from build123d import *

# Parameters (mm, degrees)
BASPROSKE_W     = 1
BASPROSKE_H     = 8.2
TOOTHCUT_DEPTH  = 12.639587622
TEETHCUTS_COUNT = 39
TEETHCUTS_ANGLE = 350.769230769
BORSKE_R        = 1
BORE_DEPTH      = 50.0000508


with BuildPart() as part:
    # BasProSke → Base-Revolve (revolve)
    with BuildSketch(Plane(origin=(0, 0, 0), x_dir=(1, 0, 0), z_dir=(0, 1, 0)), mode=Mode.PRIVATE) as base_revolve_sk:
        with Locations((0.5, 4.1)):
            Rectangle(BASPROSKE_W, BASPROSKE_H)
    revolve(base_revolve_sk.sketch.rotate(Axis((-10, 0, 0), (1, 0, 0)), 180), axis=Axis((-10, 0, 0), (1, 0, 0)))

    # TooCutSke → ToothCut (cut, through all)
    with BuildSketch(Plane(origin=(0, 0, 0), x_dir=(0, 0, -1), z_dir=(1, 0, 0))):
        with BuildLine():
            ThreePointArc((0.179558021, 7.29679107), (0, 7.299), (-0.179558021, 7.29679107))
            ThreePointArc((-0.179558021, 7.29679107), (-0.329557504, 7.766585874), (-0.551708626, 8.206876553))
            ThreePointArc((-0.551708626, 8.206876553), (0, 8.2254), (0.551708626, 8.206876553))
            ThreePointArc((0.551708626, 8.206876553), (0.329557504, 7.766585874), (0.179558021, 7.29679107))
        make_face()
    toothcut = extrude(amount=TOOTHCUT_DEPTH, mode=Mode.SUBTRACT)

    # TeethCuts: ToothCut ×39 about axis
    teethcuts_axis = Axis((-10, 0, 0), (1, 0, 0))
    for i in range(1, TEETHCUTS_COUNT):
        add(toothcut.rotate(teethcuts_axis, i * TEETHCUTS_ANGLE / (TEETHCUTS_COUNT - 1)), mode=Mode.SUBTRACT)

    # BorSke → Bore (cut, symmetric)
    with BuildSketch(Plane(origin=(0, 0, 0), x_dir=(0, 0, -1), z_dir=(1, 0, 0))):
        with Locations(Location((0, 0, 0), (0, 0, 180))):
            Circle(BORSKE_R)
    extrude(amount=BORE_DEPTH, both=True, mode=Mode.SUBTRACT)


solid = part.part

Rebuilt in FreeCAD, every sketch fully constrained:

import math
import FreeCAD as App
import Part
import Sketcher


def add_polygon(sketch, points):
    """Adds a closed chain of lines whose ends are joined by coincident constraints."""
    first, n = sketch.GeometryCount, len(points)
    for a, b in zip(points, points[1:] + points[:1]):
        sketch.addGeometry(Part.LineSegment(App.Vector(*a, 0), App.Vector(*b, 0)), False)
    for i in range(n):
        sketch.addConstraint(Sketcher.Constraint("Coincident", first + i, 2, first + (i + 1) % n, 1))

doc = App.newDocument("Part")
params = doc.addObject("Spreadsheet::Sheet", "Params")
for row, (alias, value) in enumerate([
    ("sketch1_width", "1 mm"),
    ("sketch1_height", "8.2 mm"),
    ("revolution_angle", "360 deg"),
    ("sketch2_radius", "3.12 mm"),
    ("sketch3_diameter", "2 mm"),
    ("pocket2_length", "100.000102 mm"),
], start=1):
    params.set(f"A{row}", alias)
    params.set(f"B{row}", "=" + value)
    params.setAlias(f"B{row}", alias)

body = doc.addObject("PartDesign::Body", "Body")

# Sketch on XZ plane
sketch1 = body.newObject("Sketcher::SketchObject", "Sketch")
sketch1.AttachmentSupport = (doc.getObject("XZ_Plane"), [""])
sketch1.MapMode = "FlatFace"
add_polygon(sketch1, [(0, -8.2), (0, 0), (1, 0), (1, -8.2)])  # lines 0-3
sketch1.addConstraint([
    Sketcher.Constraint("Vertical", 0),
    Sketcher.Constraint("Horizontal", 1),
    Sketcher.Constraint("Vertical", 2),
    Sketcher.Constraint("Horizontal", 3),
    Sketcher.Constraint("Coincident", 0, 2, -1, 1),
    Sketcher.Constraint("DistanceX", 1, 1, 1, 2, 1.0),
    Sketcher.Constraint("DistanceY", 0, 1, 0, 2, 8.2),
])
sketch1.setExpression("Constraints[9]", "Params.sketch1_width")
sketch1.setExpression("Constraints[10]", "Params.sketch1_height")
revolution = body.newObject("PartDesign::Revolution", "Revolution")
revolution.Profile = sketch1
revolution.ReferenceAxis = (sketch1, ["H_Axis"])
revolution.setExpression("Angle", "Params.revolution_angle")

# Sketch on YZ plane
sketch2 = body.newObject("Sketcher::SketchObject", "Sketch001")
sketch2.AttachmentSupport = (doc.getObject("YZ_Plane"), [""])
sketch2.MapMode = "FlatFace"
sketch2.addGeometry([
    Part.ArcOfCircle(Part.Circle(App.Vector(0, 0, 0), App.Vector(0, 0, 1), 7.299), math.radians(-1.409639), math.radians(1.409639)),
    Part.ArcOfCircle(Part.Circle(App.Vector(6.585678, -3.217439, 0), App.Vector(0, 0, 1), 3.12), math.radians(58.693585), math.radians(76.825313)),
    Part.ArcOfCircle(Part.Circle(App.Vector(0, 0, 0), App.Vector(0, 0, 1), 8.2254), math.radians(-3.845932), math.radians(3.845932)),
    Part.ArcOfCircle(Part.Circle(App.Vector(6.585678, 3.217439, 0), App.Vector(0, 0, 1), 3.12), math.radians(-76.825313), math.radians(-58.693585)),
], False)
sketch2.addConstraint([
    Sketcher.Constraint("Coincident", 0, 1, 1, 2),
    Sketcher.Constraint("Coincident", 1, 1, 2, 1),
    Sketcher.Constraint("Coincident", 2, 2, 3, 2),
    Sketcher.Constraint("Coincident", 3, 1, 0, 2),
    Sketcher.Constraint("Coincident", 0, 3, -1, 1),
    Sketcher.Constraint("Coincident", 2, 3, -1, 1),
    Sketcher.Constraint("Equal", 1, 3),
    Sketcher.Constraint("Symmetric", 1, 3, 3, 3, -1),
    Sketcher.Constraint("Radius", 1, 3.12),
    Sketcher.Constraint("Radius", 0, 7.299),
    Sketcher.Constraint("Radius", 2, 8.2254),
    Sketcher.Constraint("DistanceX", 1, 3, 1, 1, 1.621198),
    Sketcher.Constraint("DistanceX", -1, 1, 1, 3, 6.585678),
])
sketch2.setExpression("Constraints[8]", "Params.sketch2_radius")
pocket1 = body.newObject("PartDesign::Pocket", "Pocket")
pocket1.Profile = sketch2
pocket1.Type = "ThroughAll"
pocket1.Reversed = True
doc.recompute()

polarpattern = body.newObject("PartDesign::PolarPattern", "PolarPattern")
polarpattern.Originals = [pocket1]
polarpattern.Axis = (doc.getObject("X_Axis"), [""])
polarpattern.Angle = 360
polarpattern.Occurrences = 39
body.Tip = polarpattern

# Sketch on YZ plane
sketch3 = body.newObject("Sketcher::SketchObject", "Sketch002")
sketch3.AttachmentSupport = (doc.getObject("YZ_Plane"), [""])
sketch3.MapMode = "FlatFace"
sketch3.addGeometry(Part.Circle(App.Vector(0, 0, 0), App.Vector(0, 0, 1), 1), False)
sketch3.addConstraint([
    Sketcher.Constraint("Coincident", 0, 3, -1, 1),
    Sketcher.Constraint("Diameter", 0, 2.0),
])
sketch3.setExpression("Constraints[1]", "Params.sketch3_diameter")
pocket2 = body.newObject("PartDesign::Pocket", "Pocket001")
pocket2.Profile = sketch3
pocket2.setExpression("Length", "Params.pocket2_length")
pocket2.Midplane = True

doc.recompute()
